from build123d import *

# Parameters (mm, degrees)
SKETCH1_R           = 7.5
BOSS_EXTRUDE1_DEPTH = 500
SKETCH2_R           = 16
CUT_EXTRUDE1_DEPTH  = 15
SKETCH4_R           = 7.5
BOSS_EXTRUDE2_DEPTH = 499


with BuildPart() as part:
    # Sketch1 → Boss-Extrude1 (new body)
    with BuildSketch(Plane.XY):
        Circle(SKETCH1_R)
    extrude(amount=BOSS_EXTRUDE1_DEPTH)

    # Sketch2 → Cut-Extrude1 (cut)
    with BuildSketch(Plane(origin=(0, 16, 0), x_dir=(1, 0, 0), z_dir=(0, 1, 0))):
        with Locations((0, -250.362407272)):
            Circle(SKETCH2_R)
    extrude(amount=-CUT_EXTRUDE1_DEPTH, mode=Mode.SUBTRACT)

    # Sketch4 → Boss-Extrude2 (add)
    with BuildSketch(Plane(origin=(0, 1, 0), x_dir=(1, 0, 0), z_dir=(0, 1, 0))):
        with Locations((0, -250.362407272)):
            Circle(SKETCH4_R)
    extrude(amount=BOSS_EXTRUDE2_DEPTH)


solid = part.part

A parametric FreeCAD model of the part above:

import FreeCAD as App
import Part
import Sketcher
Q = App.Units.Quantity

doc = App.newDocument("Part")
body = doc.addObject("PartDesign::Body", "Body")

# Sketch on XY plane
sketch1 = doc.addObject("Sketcher::SketchObject", "Sketch")
body.addObject(sketch1)
sketch1.AttachmentSupport = (doc.XY_Plane, [""])
sketch1.MapMode = "FlatFace"
sketch1.addGeometry(Part.Circle(App.Vector(0, 0, 0), App.Vector(0, 0, 1), 8), False)
sketch1.addConstraint(Sketcher.Constraint("Coincident", 0, 3, -1, 1))
sketch1.addConstraint(Sketcher.Constraint("Diameter", 0, Q("15 mm")))
pad1 = doc.addObject("PartDesign::Pad", "Pad")
body.addObject(pad1)
pad1.Profile = sketch1
pad1.Length = 500

# Sketch on XZ plane
sketch2 = doc.addObject("Sketcher::SketchObject", "Sketch001")
body.addObject(sketch2)
sketch2.AttachmentSupport = (doc.XZ_Plane, [""])
sketch2.MapMode = "FlatFace"
sketch2.AttachmentOffset = App.Placement(App.Vector(0, 0, -16), App.Rotation())
sketch2.addGeometry(Part.Circle(App.Vector(0, 250, 0), App.Vector(0, 0, 1), 16), False)
sketch2.addConstraint(Sketcher.Constraint("PointOnObject", 0, 3, -2))
sketch2.addConstraint(Sketcher.Constraint("Diameter", 0, Q("32 mm")))
sketch2.addConstraint(Sketcher.Constraint("DistanceY", -1, 1, 0, 3, Q("250.362407 mm")))
pocket1 = doc.addObject("PartDesign::Pocket", "Pocket")
body.addObject(pocket1)
pocket1.Profile = sketch2
pocket1.Length = 15
pocket1.Reversed = True

# Sketch on XZ plane
sketch3 = doc.addObject("Sketcher::SketchObject", "Sketch002")
body.addObject(sketch3)
sketch3.AttachmentSupport = (doc.XZ_Plane, [""])
sketch3.MapMode = "FlatFace"
sketch3.AttachmentOffset = App.Placement(App.Vector(0, 0, -1), App.Rotation())
sketch3.addGeometry(Part.Circle(App.Vector(0, 250, 0), App.Vector(0, 0, 1), 8), False)
sketch3.addConstraint(Sketcher.Constraint("PointOnObject", 0, 3, -2))
sketch3.addConstraint(Sketcher.Constraint("Diameter", 0, Q("15 mm")))
sketch3.addConstraint(Sketcher.Constraint("DistanceY", -1, 1, 0, 3, Q("250.362407 mm")))
pad2 = doc.addObject("PartDesign::Pad", "Pad001")
body.addObject(pad2)
pad2.Profile = sketch3
pad2.Length = 499
pad2.Reversed = True

doc.recompute()
